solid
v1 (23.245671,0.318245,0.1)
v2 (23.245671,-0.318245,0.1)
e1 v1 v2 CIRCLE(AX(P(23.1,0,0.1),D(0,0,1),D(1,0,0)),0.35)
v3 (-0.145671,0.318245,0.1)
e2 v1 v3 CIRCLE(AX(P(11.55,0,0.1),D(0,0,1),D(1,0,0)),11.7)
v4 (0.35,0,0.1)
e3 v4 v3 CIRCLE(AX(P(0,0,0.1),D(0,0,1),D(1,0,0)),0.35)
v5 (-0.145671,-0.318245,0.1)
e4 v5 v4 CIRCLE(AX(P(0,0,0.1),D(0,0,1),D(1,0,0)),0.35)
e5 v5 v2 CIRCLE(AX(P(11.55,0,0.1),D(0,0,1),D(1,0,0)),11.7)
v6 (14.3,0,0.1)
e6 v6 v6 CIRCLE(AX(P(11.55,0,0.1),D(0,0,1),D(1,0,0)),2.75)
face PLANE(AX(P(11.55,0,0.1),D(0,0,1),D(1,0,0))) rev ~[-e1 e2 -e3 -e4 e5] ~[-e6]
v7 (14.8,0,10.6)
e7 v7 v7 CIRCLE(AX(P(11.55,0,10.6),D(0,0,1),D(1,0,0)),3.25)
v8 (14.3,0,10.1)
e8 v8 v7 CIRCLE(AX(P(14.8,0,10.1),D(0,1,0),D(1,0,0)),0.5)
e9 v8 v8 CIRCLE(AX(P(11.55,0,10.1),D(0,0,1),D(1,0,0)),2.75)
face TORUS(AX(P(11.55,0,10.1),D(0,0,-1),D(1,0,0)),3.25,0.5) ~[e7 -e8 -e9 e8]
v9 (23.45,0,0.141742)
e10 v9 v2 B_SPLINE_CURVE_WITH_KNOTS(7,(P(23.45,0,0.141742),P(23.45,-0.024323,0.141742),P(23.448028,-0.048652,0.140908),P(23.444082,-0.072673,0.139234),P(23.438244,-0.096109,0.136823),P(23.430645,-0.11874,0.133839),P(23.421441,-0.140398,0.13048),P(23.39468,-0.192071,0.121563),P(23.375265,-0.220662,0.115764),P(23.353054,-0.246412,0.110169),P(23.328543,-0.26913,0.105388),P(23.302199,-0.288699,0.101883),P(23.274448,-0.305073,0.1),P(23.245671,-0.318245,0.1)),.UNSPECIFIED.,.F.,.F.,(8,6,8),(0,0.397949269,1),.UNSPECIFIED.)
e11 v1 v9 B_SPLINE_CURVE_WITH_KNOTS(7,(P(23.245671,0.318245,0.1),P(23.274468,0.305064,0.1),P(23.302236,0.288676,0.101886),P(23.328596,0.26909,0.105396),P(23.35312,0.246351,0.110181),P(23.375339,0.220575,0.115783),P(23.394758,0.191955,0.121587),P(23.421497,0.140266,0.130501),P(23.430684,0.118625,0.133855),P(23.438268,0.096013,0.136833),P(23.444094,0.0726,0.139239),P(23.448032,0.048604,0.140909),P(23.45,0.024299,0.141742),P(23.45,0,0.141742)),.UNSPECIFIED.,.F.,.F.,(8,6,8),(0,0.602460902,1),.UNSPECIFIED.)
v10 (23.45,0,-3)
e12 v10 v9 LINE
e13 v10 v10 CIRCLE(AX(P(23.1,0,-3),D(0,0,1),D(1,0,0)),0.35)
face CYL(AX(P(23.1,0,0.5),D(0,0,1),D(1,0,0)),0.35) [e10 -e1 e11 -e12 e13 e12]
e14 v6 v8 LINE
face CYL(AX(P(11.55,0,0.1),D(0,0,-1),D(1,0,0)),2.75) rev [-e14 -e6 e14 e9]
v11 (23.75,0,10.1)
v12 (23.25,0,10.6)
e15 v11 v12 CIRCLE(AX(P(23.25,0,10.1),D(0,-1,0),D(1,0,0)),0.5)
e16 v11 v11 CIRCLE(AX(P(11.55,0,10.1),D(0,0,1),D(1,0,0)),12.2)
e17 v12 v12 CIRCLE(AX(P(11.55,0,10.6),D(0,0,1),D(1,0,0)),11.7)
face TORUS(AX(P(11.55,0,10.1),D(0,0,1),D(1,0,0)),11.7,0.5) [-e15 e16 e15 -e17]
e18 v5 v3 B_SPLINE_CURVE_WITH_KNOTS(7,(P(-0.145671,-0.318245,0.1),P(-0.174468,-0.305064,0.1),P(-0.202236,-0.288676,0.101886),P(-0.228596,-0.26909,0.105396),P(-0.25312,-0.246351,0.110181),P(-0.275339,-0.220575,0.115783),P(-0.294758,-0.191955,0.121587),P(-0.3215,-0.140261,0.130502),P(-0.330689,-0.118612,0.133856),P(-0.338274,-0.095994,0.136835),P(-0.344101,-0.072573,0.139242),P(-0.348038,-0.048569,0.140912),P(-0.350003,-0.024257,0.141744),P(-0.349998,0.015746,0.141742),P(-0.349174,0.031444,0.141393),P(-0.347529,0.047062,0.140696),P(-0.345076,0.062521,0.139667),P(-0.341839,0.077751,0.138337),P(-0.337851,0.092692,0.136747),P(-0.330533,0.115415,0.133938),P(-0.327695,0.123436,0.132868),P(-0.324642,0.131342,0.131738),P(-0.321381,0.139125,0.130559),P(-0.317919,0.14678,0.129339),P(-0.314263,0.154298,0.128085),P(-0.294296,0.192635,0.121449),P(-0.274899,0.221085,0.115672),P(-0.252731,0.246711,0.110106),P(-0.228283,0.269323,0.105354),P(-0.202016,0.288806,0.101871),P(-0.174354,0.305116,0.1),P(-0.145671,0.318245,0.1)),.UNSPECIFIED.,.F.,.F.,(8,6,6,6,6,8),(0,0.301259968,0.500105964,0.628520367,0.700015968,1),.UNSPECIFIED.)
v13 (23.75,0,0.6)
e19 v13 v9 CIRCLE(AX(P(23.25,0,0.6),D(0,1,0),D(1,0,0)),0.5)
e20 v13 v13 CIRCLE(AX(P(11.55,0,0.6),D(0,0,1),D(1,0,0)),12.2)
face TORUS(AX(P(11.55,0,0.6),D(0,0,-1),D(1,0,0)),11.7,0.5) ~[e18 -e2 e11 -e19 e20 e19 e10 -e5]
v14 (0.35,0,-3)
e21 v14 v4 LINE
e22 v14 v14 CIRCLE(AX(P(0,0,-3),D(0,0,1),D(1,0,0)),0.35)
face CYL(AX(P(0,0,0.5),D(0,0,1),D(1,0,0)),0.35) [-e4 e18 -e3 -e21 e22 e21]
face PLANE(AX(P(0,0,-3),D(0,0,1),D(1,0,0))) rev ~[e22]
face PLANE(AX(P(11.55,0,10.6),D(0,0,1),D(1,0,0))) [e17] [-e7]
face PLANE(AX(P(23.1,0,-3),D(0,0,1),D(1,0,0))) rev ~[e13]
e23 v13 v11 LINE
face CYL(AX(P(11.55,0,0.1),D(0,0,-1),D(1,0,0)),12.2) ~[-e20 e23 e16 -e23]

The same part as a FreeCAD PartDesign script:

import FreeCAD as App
import Part
import Sketcher
Q = App.Units.Quantity


def edges_at(feature, points):
    """Names of the edges that pass closest to the given points."""
    edges = feature.Shape.Edges
    near = lambda p: min(range(len(edges)), key=lambda i: edges[i].distToShape(Part.Vertex(*p))[0])
    return sorted({f"Edge{near(p) + 1}" for p in points})

doc = App.newDocument("Part")
body = doc.addObject("PartDesign::Body", "Body")
body.AllowCompound = True

# Sketch on XY plane
sketch1 = body.newObject("Sketcher::SketchObject", "Sketch")
sketch1.AttachmentSupport = (doc.getObject("XY_Plane"), [""])
sketch1.MapMode = "FlatFace"
sketch1.AttachmentOffset = App.Placement(App.Vector(0, 0, 0.5), App.Rotation())
sketch1.addGeometry(Part.Circle(App.Vector(0, 0, 0), App.Vector(0, 0, 1), 0.35), False)
sketch1.addGeometry(Part.Circle(App.Vector(23.1, 0, 0), App.Vector(0, 0, 1), 0.35), False)
sketch1.addConstraint(Sketcher.Constraint("Coincident", 0, 3, -1, 1))
sketch1.addConstraint(Sketcher.Constraint("Equal", 0, 1))
sketch1.addConstraint(Sketcher.Constraint("PointOnObject", 1, 3, -1))
sketch1.addConstraint(Sketcher.Constraint("Diameter", 0, Q("0.7 mm")))
sketch1.addConstraint(Sketcher.Constraint("DistanceX", -1, 1, 1, 3, Q("23.1 mm")))
pad1 = body.newObject("PartDesign::Pad", "Pad")
pad1.Profile = sketch1
pad1.Type = "TwoLengths"
pad1.Length = 5.25
pad1.Length2 = 3.5
body2 = doc.addObject("PartDesign::Body", "Body001")

# Sketch on XY plane
sketch2 = body2.newObject("Sketcher::SketchObject", "Sketch001")
sketch2.AttachmentSupport = (doc.getObject("XY_Plane001"), [""])
sketch2.MapMode = "FlatFace"
sketch2.AttachmentOffset = App.Placement(App.Vector(0, 0, 0.1), App.Rotation())
sketch2.addGeometry(Part.Circle(App.Vector(11.6, 0, 0), App.Vector(0, 0, 1), 12.2), False)
sketch2.addGeometry(Part.Circle(App.Vector(11.6, 0, 0), App.Vector(0, 0, 1), 2.8), False)
sketch2.addConstraint(Sketcher.Constraint("Coincident", 1, 3, 0, 3))
sketch2.addConstraint(Sketcher.Constraint("PointOnObject", 0, 3, -1))
sketch2.addConstraint(Sketcher.Constraint("Diameter", 0, Q("24.4 mm")))
sketch2.addConstraint(Sketcher.Constraint("Diameter", 1, Q("5.5 mm")))
sketch2.addConstraint(Sketcher.Constraint("DistanceX", -1, 1, 0, 3, Q("11.55 mm")))
pad2 = body2.newObject("PartDesign::Pad", "Pad001")
pad2.Profile = sketch2
pad2.Length = 10.5
doc.recompute()

fillet = body2.newObject("PartDesign::Fillet", "Fillet")
fillet.Base = (pad2, edges_at(pad2, [(8.8, 0, 10.6), (-0.65, 0, 10.6), (-0.65, 0, 0.1)]))
fillet.Radius = 0.5
doc.recompute()

boolean = body2.newObject("PartDesign::Boolean", "Boolean")
boolean.Type = "Fuse"
boolean.addObjects([body])

doc.recompute()
